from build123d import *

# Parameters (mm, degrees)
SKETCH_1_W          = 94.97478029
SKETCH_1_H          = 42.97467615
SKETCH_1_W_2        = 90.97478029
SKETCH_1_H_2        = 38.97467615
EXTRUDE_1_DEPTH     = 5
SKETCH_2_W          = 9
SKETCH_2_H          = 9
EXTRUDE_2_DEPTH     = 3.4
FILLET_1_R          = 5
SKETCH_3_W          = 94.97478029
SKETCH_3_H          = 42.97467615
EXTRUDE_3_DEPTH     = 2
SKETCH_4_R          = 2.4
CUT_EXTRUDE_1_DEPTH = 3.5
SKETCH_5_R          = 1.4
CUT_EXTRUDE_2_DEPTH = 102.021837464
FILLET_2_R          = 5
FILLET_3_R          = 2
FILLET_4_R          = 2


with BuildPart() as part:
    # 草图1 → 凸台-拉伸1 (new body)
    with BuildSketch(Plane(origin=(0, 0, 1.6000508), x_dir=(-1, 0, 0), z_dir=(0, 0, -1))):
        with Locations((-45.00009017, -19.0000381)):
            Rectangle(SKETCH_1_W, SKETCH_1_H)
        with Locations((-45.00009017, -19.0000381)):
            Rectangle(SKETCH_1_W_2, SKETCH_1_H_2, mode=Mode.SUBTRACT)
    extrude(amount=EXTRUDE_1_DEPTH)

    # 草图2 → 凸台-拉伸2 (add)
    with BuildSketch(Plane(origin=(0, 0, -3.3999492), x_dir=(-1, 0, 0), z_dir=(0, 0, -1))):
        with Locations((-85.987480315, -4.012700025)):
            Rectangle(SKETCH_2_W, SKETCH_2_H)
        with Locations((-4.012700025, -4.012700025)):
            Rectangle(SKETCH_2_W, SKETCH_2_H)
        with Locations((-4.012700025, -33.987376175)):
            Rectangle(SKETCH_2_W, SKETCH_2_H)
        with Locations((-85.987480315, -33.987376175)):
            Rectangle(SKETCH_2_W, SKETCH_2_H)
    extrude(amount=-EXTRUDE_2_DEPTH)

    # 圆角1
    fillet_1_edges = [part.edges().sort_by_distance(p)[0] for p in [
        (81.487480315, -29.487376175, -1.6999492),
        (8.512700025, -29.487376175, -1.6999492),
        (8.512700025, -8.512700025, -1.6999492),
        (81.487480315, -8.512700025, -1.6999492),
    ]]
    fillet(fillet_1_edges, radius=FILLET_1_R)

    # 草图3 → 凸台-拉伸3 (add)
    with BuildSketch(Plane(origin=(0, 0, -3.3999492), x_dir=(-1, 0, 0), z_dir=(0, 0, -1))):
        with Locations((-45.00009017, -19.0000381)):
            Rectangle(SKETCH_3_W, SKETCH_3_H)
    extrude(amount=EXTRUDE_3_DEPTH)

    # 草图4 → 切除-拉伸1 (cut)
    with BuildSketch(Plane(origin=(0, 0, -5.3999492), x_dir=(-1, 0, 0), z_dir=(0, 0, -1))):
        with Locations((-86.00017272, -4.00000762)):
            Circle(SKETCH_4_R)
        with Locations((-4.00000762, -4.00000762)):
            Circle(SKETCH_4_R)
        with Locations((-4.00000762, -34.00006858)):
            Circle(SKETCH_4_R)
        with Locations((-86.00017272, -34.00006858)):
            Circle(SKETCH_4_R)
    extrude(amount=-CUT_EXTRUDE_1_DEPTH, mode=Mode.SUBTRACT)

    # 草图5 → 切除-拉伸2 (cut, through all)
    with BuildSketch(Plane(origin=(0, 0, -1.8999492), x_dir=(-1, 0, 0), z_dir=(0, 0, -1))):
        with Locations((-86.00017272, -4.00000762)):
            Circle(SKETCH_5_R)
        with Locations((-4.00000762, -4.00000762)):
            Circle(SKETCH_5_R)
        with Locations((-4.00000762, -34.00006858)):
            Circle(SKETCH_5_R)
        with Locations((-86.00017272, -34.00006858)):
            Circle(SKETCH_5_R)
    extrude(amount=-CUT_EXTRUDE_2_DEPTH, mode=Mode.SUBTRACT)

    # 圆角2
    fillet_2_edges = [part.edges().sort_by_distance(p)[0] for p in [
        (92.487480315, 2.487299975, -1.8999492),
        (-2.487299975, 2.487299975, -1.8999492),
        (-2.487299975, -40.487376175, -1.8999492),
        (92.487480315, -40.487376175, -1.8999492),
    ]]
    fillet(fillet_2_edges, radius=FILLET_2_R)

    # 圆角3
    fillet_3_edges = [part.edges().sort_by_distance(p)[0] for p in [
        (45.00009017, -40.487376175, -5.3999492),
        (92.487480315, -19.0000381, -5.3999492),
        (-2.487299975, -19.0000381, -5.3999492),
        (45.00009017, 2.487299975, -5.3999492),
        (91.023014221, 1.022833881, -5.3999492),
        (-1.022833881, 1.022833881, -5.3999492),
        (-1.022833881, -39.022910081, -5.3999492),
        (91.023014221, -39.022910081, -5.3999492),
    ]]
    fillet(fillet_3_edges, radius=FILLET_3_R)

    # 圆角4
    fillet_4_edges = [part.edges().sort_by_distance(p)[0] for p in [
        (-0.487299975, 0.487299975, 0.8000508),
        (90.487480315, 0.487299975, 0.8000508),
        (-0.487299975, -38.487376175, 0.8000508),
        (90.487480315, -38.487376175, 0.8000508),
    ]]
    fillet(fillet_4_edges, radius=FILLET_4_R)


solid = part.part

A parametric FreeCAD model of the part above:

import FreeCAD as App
import Part
import Sketcher
from FreeCAD import Vector


def edges_at(feature, points):
    """Names of the edges that pass closest to the given points."""
    edges = feature.Shape.Edges
    near = lambda p: min(range(len(edges)), key=lambda i: edges[i].distToShape(Part.Vertex(*p))[0])
    return sorted({f"Edge{near(p) + 1}" for p in points})


def add_polygon(sketch, points):
    """Adds a closed chain of lines whose ends are joined by coincident constraints."""
    first, n = sketch.GeometryCount, len(points)
    for a, b in zip(points, points[1:] + points[:1]):
        sketch.addGeometry(Part.LineSegment(App.Vector(*a, 0), App.Vector(*b, 0)), False)
    for i in range(n):
        sketch.addConstraint(Sketcher.Constraint("Coincident", first + i, 2, first + (i + 1) % n, 1))

doc = App.newDocument("Part")
body = doc.addObject("PartDesign::Body", "Body")

# Sketch on XY plane
sketch1 = body.newObject("Sketcher::SketchObject", "Sketch")
sketch1.AttachmentSupport = (doc.getObject("XY_Plane"), [""])
sketch1.MapMode = "FlatFace"
sketch1.AttachmentOffset = App.Placement(Vector(0, 0, 1.600051), App.Rotation())
add_polygon(sketch1, [(92, 2), (92, -40), (-2, -40), (-2, 2)])  # lines 0-3
add_polygon(sketch1, [(0, -38), (90, -38), (90, 0), (0, 0)])  # lines 4-7
sketch1.addConstraint(Sketcher.Constraint("Vertical", 0))
sketch1.addConstraint(Sketcher.Constraint("Horizontal", 1))
sketch1.addConstraint(Sketcher.Constraint("Vertical", 2))
sketch1.addConstraint(Sketcher.Constraint("Horizontal", 3))
sketch1.addConstraint(Sketcher.Constraint("Horizontal", 4))
sketch1.addConstraint(Sketcher.Constraint("Vertical", 5))
sketch1.addConstraint(Sketcher.Constraint("Horizontal", 6))
sketch1.addConstraint(Sketcher.Constraint("Vertical", 7))
sketch1.addConstraint(Sketcher.Constraint("DistanceX", 4, 2, 0, 2, 2.0))
sketch1.addConstraint(Sketcher.Constraint("DistanceY", 0, 2, 4, 2, 2.0))
sketch1.addConstraint(Sketcher.Constraint("DistanceY", 5, 2, 3, 2, 2.0))
sketch1.addConstraint(Sketcher.Constraint("DistanceX", 2, 2, 6, 2, 2.0))
sketch1.addConstraint(Sketcher.Constraint("DistanceX", 1, 2, 1, 1, 94.97478))
sketch1.addConstraint(Sketcher.Constraint("DistanceX", 1, 2, -1, 1, 2.4873))
sketch1.addConstraint(Sketcher.Constraint("DistanceY", -1, 1, 2, 2, 2.4873))
sketch1.addConstraint(Sketcher.Constraint("DistanceY", 0, 2, 0, 1, 42.974676))
pad1 = body.newObject("PartDesign::Pad", "Pad")
pad1.Profile = sketch1
pad1.Length = 5
pad1.Reversed = True

# Sketch on XY plane
sketch2 = body.newObject("Sketcher::SketchObject", "Sketch001")
sketch2.AttachmentSupport = (doc.getObject("XY_Plane"), [""])
sketch2.MapMode = "FlatFace"
sketch2.AttachmentOffset = App.Placement(Vector(0, 0, -3.399949), App.Rotation())
add_polygon(sketch2, [(90, 0), (90, -9), (81, -9), (81, 0)])  # lines 0-3
add_polygon(sketch2, [(9, 0), (9, -9), (0, -9), (0, 0)])  # lines 4-7
add_polygon(sketch2, [(9, -29), (9, -38), (0, -38), (0, -29)])  # lines 8-11
add_polygon(sketch2, [(90, -29), (90, -38), (81, -38), (81, -29)])  # lines 12-15
sketch2.addConstraint(Sketcher.Constraint("Vertical", 0))
sketch2.addConstraint(Sketcher.Constraint("Horizontal", 1))
sketch2.addConstraint(Sketcher.Constraint("Vertical", 2))
sketch2.addConstraint(Sketcher.Constraint("Horizontal", 3))
sketch2.addConstraint(Sketcher.Constraint("Vertical", 4))
sketch2.addConstraint(Sketcher.Constraint("Horizontal", 5))
sketch2.addConstraint(Sketcher.Constraint("Vertical", 6))
sketch2.addConstraint(Sketcher.Constraint("Horizontal", 7))
sketch2.addConstraint(Sketcher.Constraint("Vertical", 8))
sketch2.addConstraint(Sketcher.Constraint("Horizontal", 9))
sketch2.addConstraint(Sketcher.Constraint("Vertical", 10))
sketch2.addConstraint(Sketcher.Constraint("Horizontal", 11))
sketch2.addConstraint(Sketcher.Constraint("Vertical", 12))
sketch2.addConstraint(Sketcher.Constraint("Horizontal", 13))
sketch2.addConstraint(Sketcher.Constraint("Vertical", 14))
sketch2.addConstraint(Sketcher.Constraint("Horizontal", 15))
sketch2.addConstraint(Sketcher.Constraint("Horizontal", 1, 2, 4, 2))
sketch2.addConstraint(Sketcher.Constraint("Horizontal", 3, 2, 6, 2))
sketch2.addConstraint(Sketcher.Constraint("Horizontal", 9, 2, 12, 2))
sketch2.addConstraint(Sketcher.Constraint("Horizontal", 11, 2, 14, 2))
sketch2.addConstraint(Sketcher.Constraint("Vertical", 7, 2, 8, 2))
sketch2.addConstraint(Sketcher.Constraint("Vertical", 6, 2, 9, 2))
sketch2.addConstraint(Sketcher.Constraint("Vertical", 3, 2, 12, 2))
sketch2.addConstraint(Sketcher.Constraint("Vertical", 2, 2, 13, 2))
sketch2.addConstraint(Sketcher.Constraint("Equal", 3, 5))
sketch2.addConstraint(Sketcher.Constraint("Equal", 15, 0))
sketch2.addConstraint(Sketcher.Constraint("Equal", 6, 8))
sketch2.addConstraint(Sketcher.Constraint("DistanceX", 1, 2, 1, 1, 9.0))
sketch2.addConstraint(Sketcher.Constraint("DistanceY", 0, 2, -1, 1, 8.5127))
sketch2.addConstraint(Sketcher.Constraint("DistanceX", -1, 1, 4, 2, 8.5127))
sketch2.addConstraint(Sketcher.Constraint("DistanceX", -1, 1, 0, 2, 90.48748))
sketch2.addConstraint(Sketcher.Constraint("DistanceY", 8, 2, -1, 1, 38.487376))
pad2 = body.newObject("PartDesign::Pad", "Pad001")
pad2.Profile = sketch2
pad2.Length = 3.4
doc.recompute()

fillet = body.newObject("PartDesign::Fillet", "Fillet")
fillet.Base = (pad2, edges_at(pad2, [
    (81.487, -29.487, -1.7),
    (8.513, -29.487, -1.7),
    (8.513, -8.513, -1.7),
    (81.487, -8.513, -1.7),
]))
fillet.Radius = 5

# Sketch on XY plane
sketch3 = body.newObject("Sketcher::SketchObject", "Sketch002")
sketch3.AttachmentSupport = (doc.getObject("XY_Plane"), [""])
sketch3.MapMode = "FlatFace"
sketch3.AttachmentOffset = App.Placement(Vector(0, 0, -3.399949), App.Rotation())
add_polygon(sketch3, [(92, 2), (92, -40), (-2, -40), (-2, 2)])  # lines 0-3
sketch3.addConstraint(Sketcher.Constraint("Vertical", 0))
sketch3.addConstraint(Sketcher.Constraint("Horizontal", 1))
sketch3.addConstraint(Sketcher.Constraint("Vertical", 2))
sketch3.addConstraint(Sketcher.Constraint("Horizontal", 3))
sketch3.addConstraint(Sketcher.Constraint("DistanceX", 1, 2, 1, 1, 94.97478))
sketch3.addConstraint(Sketcher.Constraint("DistanceX", 1, 2, -1, 1, 2.4873))
sketch3.addConstraint(Sketcher.Constraint("DistanceY", -1, 1, 2, 2, 2.4873))
sketch3.addConstraint(Sketcher.Constraint("DistanceY", 0, 2, 0, 1, 42.974676))
pad3 = body.newObject("PartDesign::Pad", "Pad002")
pad3.Profile = sketch3
pad3.Length = 2
pad3.Reversed = True

# Sketch on XY plane
sketch4 = body.newObject("Sketcher::SketchObject", "Sketch003")
sketch4.AttachmentSupport = (doc.getObject("XY_Plane"), [""])
sketch4.MapMode = "FlatFace"
sketch4.AttachmentOffset = App.Placement(Vector(0, 0, -5.399949), App.Rotation())
sketch4.addGeometry(Part.Circle(Vector(86, -4, 0), Vector(0, 0, 1), 2.4), False)
sketch4.addGeometry(Part.Circle(Vector(4, -4, 0), Vector(0, 0, 1), 2.4), False)
sketch4.addGeometry(Part.Circle(Vector(4, -34, 0), Vector(0, 0, 1), 2.4), False)
sketch4.addGeometry(Part.Circle(Vector(86, -34, 0), Vector(0, 0, 1), 2.4), False)
sketch4.addConstraint(Sketcher.Constraint("Equal", 0, 1))
sketch4.addConstraint(Sketcher.Constraint("Equal", 1, 2))
sketch4.addConstraint(Sketcher.Constraint("Equal", 2, 3))
sketch4.addConstraint(Sketcher.Constraint("Horizontal", 0, 3, 1, 3))
sketch4.addConstraint(Sketcher.Constraint("Horizontal", 2, 3, 3, 3))
sketch4.addConstraint(Sketcher.Constraint("Vertical", 1, 3, 2, 3))
sketch4.addConstraint(Sketcher.Constraint("Vertical", 0, 3, 3, 3))
sketch4.addConstraint(Sketcher.Constraint("Diameter", 0, 4.8))
sketch4.addConstraint(Sketcher.Constraint("DistanceY", 2, 3, -1, 1, 34.000069))
sketch4.addConstraint(Sketcher.Constraint("DistanceY", 2, 3, 1, 3, 30.000061))
sketch4.addConstraint(Sketcher.Constraint("DistanceX", -1, 1, 0, 3, 86.000173))
sketch4.addConstraint(Sketcher.Constraint("DistanceX", -1, 1, 1, 3, 4.000008))
pocket1 = body.newObject("PartDesign::Pocket", "Pocket")
pocket1.Profile = sketch4
pocket1.Length = 3.5
pocket1.Reversed = True

# Sketch on XY plane
sketch5 = body.newObject("Sketcher::SketchObject", "Sketch004")
sketch5.AttachmentSupport = (doc.getObject("XY_Plane"), [""])
sketch5.MapMode = "FlatFace"
sketch5.AttachmentOffset = App.Placement(Vector(0, 0, -1.899949), App.Rotation())
sketch5.addGeometry(Part.Circle(Vector(86, -4, 0), Vector(0, 0, 1), 1.4), False)
sketch5.addGeometry(Part.Circle(Vector(4, -4, 0), Vector(0, 0, 1), 1.4), False)
sketch5.addGeometry(Part.Circle(Vector(4, -34, 0), Vector(0, 0, 1), 1.4), False)
sketch5.addGeometry(Part.Circle(Vector(86, -34, 0), Vector(0, 0, 1), 1.4), False)
sketch5.addConstraint(Sketcher.Constraint("Equal", 0, 1))
sketch5.addConstraint(Sketcher.Constraint("Equal", 1, 2))
sketch5.addConstraint(Sketcher.Constraint("Equal", 2, 3))
sketch5.addConstraint(Sketcher.Constraint("Horizontal", 0, 3, 1, 3))
sketch5.addConstraint(Sketcher.Constraint("Horizontal", 2, 3, 3, 3))
sketch5.addConstraint(Sketcher.Constraint("Vertical", 1, 3, 2, 3))
sketch5.addConstraint(Sketcher.Constraint("Vertical", 0, 3, 3, 3))
sketch5.addConstraint(Sketcher.Constraint("Diameter", 0, 2.8))
sketch5.addConstraint(Sketcher.Constraint("DistanceY", 2, 3, -1, 1, 34.000069))
sketch5.addConstraint(Sketcher.Constraint("DistanceY", 2, 3, 1, 3, 30.000061))
sketch5.addConstraint(Sketcher.Constraint("DistanceX", -1, 1, 0, 3, 86.000173))
sketch5.addConstraint(Sketcher.Constraint("DistanceX", -1, 1, 1, 3, 4.000008))
pocket2 = body.newObject("PartDesign::Pocket", "Pocket001")
pocket2.Profile = sketch5
pocket2.Type = "ThroughAll"
pocket2.Reversed = True
doc.recompute()

fillet2 = body.newObject("PartDesign::Fillet", "Fillet001")
fillet2.Base = (pocket2, edges_at(pocket2, [
    (92.487, 2.487, -1.9),
    (-2.487, 2.487, -1.9),
    (-2.487, -40.487, -1.9),
    (92.487, -40.487, -1.9),
]))
fillet2.Radius = 5
doc.recompute()

fillet3 = body.newObject("PartDesign::Fillet", "Fillet002")
fillet3.Base = (fillet2, edges_at(fillet2, [
    (45, -40.487, -5.4),
    (92.487, -19, -5.4),
    (-2.487, -19, -5.4),
    (45, 2.487, -5.4),
    (91.023, 1.023, -5.4),
    (-1.023, 1.023, -5.4),
    (-1.023, -39.023, -5.4),
    (91.023, -39.023, -5.4),
]))
fillet3.Radius = 2
doc.recompute()

fillet4 = body.newObject("PartDesign::Fillet", "Fillet003")
fillet4.Base = (fillet3, edges_at(fillet3, [
    (-0.487, 0.487, 0.8),
    (90.487, 0.487, 0.8),
    (-0.487, -38.487, 0.8),
    (90.487, -38.487, 0.8),
]))
fillet4.Radius = 2

doc.recompute()
